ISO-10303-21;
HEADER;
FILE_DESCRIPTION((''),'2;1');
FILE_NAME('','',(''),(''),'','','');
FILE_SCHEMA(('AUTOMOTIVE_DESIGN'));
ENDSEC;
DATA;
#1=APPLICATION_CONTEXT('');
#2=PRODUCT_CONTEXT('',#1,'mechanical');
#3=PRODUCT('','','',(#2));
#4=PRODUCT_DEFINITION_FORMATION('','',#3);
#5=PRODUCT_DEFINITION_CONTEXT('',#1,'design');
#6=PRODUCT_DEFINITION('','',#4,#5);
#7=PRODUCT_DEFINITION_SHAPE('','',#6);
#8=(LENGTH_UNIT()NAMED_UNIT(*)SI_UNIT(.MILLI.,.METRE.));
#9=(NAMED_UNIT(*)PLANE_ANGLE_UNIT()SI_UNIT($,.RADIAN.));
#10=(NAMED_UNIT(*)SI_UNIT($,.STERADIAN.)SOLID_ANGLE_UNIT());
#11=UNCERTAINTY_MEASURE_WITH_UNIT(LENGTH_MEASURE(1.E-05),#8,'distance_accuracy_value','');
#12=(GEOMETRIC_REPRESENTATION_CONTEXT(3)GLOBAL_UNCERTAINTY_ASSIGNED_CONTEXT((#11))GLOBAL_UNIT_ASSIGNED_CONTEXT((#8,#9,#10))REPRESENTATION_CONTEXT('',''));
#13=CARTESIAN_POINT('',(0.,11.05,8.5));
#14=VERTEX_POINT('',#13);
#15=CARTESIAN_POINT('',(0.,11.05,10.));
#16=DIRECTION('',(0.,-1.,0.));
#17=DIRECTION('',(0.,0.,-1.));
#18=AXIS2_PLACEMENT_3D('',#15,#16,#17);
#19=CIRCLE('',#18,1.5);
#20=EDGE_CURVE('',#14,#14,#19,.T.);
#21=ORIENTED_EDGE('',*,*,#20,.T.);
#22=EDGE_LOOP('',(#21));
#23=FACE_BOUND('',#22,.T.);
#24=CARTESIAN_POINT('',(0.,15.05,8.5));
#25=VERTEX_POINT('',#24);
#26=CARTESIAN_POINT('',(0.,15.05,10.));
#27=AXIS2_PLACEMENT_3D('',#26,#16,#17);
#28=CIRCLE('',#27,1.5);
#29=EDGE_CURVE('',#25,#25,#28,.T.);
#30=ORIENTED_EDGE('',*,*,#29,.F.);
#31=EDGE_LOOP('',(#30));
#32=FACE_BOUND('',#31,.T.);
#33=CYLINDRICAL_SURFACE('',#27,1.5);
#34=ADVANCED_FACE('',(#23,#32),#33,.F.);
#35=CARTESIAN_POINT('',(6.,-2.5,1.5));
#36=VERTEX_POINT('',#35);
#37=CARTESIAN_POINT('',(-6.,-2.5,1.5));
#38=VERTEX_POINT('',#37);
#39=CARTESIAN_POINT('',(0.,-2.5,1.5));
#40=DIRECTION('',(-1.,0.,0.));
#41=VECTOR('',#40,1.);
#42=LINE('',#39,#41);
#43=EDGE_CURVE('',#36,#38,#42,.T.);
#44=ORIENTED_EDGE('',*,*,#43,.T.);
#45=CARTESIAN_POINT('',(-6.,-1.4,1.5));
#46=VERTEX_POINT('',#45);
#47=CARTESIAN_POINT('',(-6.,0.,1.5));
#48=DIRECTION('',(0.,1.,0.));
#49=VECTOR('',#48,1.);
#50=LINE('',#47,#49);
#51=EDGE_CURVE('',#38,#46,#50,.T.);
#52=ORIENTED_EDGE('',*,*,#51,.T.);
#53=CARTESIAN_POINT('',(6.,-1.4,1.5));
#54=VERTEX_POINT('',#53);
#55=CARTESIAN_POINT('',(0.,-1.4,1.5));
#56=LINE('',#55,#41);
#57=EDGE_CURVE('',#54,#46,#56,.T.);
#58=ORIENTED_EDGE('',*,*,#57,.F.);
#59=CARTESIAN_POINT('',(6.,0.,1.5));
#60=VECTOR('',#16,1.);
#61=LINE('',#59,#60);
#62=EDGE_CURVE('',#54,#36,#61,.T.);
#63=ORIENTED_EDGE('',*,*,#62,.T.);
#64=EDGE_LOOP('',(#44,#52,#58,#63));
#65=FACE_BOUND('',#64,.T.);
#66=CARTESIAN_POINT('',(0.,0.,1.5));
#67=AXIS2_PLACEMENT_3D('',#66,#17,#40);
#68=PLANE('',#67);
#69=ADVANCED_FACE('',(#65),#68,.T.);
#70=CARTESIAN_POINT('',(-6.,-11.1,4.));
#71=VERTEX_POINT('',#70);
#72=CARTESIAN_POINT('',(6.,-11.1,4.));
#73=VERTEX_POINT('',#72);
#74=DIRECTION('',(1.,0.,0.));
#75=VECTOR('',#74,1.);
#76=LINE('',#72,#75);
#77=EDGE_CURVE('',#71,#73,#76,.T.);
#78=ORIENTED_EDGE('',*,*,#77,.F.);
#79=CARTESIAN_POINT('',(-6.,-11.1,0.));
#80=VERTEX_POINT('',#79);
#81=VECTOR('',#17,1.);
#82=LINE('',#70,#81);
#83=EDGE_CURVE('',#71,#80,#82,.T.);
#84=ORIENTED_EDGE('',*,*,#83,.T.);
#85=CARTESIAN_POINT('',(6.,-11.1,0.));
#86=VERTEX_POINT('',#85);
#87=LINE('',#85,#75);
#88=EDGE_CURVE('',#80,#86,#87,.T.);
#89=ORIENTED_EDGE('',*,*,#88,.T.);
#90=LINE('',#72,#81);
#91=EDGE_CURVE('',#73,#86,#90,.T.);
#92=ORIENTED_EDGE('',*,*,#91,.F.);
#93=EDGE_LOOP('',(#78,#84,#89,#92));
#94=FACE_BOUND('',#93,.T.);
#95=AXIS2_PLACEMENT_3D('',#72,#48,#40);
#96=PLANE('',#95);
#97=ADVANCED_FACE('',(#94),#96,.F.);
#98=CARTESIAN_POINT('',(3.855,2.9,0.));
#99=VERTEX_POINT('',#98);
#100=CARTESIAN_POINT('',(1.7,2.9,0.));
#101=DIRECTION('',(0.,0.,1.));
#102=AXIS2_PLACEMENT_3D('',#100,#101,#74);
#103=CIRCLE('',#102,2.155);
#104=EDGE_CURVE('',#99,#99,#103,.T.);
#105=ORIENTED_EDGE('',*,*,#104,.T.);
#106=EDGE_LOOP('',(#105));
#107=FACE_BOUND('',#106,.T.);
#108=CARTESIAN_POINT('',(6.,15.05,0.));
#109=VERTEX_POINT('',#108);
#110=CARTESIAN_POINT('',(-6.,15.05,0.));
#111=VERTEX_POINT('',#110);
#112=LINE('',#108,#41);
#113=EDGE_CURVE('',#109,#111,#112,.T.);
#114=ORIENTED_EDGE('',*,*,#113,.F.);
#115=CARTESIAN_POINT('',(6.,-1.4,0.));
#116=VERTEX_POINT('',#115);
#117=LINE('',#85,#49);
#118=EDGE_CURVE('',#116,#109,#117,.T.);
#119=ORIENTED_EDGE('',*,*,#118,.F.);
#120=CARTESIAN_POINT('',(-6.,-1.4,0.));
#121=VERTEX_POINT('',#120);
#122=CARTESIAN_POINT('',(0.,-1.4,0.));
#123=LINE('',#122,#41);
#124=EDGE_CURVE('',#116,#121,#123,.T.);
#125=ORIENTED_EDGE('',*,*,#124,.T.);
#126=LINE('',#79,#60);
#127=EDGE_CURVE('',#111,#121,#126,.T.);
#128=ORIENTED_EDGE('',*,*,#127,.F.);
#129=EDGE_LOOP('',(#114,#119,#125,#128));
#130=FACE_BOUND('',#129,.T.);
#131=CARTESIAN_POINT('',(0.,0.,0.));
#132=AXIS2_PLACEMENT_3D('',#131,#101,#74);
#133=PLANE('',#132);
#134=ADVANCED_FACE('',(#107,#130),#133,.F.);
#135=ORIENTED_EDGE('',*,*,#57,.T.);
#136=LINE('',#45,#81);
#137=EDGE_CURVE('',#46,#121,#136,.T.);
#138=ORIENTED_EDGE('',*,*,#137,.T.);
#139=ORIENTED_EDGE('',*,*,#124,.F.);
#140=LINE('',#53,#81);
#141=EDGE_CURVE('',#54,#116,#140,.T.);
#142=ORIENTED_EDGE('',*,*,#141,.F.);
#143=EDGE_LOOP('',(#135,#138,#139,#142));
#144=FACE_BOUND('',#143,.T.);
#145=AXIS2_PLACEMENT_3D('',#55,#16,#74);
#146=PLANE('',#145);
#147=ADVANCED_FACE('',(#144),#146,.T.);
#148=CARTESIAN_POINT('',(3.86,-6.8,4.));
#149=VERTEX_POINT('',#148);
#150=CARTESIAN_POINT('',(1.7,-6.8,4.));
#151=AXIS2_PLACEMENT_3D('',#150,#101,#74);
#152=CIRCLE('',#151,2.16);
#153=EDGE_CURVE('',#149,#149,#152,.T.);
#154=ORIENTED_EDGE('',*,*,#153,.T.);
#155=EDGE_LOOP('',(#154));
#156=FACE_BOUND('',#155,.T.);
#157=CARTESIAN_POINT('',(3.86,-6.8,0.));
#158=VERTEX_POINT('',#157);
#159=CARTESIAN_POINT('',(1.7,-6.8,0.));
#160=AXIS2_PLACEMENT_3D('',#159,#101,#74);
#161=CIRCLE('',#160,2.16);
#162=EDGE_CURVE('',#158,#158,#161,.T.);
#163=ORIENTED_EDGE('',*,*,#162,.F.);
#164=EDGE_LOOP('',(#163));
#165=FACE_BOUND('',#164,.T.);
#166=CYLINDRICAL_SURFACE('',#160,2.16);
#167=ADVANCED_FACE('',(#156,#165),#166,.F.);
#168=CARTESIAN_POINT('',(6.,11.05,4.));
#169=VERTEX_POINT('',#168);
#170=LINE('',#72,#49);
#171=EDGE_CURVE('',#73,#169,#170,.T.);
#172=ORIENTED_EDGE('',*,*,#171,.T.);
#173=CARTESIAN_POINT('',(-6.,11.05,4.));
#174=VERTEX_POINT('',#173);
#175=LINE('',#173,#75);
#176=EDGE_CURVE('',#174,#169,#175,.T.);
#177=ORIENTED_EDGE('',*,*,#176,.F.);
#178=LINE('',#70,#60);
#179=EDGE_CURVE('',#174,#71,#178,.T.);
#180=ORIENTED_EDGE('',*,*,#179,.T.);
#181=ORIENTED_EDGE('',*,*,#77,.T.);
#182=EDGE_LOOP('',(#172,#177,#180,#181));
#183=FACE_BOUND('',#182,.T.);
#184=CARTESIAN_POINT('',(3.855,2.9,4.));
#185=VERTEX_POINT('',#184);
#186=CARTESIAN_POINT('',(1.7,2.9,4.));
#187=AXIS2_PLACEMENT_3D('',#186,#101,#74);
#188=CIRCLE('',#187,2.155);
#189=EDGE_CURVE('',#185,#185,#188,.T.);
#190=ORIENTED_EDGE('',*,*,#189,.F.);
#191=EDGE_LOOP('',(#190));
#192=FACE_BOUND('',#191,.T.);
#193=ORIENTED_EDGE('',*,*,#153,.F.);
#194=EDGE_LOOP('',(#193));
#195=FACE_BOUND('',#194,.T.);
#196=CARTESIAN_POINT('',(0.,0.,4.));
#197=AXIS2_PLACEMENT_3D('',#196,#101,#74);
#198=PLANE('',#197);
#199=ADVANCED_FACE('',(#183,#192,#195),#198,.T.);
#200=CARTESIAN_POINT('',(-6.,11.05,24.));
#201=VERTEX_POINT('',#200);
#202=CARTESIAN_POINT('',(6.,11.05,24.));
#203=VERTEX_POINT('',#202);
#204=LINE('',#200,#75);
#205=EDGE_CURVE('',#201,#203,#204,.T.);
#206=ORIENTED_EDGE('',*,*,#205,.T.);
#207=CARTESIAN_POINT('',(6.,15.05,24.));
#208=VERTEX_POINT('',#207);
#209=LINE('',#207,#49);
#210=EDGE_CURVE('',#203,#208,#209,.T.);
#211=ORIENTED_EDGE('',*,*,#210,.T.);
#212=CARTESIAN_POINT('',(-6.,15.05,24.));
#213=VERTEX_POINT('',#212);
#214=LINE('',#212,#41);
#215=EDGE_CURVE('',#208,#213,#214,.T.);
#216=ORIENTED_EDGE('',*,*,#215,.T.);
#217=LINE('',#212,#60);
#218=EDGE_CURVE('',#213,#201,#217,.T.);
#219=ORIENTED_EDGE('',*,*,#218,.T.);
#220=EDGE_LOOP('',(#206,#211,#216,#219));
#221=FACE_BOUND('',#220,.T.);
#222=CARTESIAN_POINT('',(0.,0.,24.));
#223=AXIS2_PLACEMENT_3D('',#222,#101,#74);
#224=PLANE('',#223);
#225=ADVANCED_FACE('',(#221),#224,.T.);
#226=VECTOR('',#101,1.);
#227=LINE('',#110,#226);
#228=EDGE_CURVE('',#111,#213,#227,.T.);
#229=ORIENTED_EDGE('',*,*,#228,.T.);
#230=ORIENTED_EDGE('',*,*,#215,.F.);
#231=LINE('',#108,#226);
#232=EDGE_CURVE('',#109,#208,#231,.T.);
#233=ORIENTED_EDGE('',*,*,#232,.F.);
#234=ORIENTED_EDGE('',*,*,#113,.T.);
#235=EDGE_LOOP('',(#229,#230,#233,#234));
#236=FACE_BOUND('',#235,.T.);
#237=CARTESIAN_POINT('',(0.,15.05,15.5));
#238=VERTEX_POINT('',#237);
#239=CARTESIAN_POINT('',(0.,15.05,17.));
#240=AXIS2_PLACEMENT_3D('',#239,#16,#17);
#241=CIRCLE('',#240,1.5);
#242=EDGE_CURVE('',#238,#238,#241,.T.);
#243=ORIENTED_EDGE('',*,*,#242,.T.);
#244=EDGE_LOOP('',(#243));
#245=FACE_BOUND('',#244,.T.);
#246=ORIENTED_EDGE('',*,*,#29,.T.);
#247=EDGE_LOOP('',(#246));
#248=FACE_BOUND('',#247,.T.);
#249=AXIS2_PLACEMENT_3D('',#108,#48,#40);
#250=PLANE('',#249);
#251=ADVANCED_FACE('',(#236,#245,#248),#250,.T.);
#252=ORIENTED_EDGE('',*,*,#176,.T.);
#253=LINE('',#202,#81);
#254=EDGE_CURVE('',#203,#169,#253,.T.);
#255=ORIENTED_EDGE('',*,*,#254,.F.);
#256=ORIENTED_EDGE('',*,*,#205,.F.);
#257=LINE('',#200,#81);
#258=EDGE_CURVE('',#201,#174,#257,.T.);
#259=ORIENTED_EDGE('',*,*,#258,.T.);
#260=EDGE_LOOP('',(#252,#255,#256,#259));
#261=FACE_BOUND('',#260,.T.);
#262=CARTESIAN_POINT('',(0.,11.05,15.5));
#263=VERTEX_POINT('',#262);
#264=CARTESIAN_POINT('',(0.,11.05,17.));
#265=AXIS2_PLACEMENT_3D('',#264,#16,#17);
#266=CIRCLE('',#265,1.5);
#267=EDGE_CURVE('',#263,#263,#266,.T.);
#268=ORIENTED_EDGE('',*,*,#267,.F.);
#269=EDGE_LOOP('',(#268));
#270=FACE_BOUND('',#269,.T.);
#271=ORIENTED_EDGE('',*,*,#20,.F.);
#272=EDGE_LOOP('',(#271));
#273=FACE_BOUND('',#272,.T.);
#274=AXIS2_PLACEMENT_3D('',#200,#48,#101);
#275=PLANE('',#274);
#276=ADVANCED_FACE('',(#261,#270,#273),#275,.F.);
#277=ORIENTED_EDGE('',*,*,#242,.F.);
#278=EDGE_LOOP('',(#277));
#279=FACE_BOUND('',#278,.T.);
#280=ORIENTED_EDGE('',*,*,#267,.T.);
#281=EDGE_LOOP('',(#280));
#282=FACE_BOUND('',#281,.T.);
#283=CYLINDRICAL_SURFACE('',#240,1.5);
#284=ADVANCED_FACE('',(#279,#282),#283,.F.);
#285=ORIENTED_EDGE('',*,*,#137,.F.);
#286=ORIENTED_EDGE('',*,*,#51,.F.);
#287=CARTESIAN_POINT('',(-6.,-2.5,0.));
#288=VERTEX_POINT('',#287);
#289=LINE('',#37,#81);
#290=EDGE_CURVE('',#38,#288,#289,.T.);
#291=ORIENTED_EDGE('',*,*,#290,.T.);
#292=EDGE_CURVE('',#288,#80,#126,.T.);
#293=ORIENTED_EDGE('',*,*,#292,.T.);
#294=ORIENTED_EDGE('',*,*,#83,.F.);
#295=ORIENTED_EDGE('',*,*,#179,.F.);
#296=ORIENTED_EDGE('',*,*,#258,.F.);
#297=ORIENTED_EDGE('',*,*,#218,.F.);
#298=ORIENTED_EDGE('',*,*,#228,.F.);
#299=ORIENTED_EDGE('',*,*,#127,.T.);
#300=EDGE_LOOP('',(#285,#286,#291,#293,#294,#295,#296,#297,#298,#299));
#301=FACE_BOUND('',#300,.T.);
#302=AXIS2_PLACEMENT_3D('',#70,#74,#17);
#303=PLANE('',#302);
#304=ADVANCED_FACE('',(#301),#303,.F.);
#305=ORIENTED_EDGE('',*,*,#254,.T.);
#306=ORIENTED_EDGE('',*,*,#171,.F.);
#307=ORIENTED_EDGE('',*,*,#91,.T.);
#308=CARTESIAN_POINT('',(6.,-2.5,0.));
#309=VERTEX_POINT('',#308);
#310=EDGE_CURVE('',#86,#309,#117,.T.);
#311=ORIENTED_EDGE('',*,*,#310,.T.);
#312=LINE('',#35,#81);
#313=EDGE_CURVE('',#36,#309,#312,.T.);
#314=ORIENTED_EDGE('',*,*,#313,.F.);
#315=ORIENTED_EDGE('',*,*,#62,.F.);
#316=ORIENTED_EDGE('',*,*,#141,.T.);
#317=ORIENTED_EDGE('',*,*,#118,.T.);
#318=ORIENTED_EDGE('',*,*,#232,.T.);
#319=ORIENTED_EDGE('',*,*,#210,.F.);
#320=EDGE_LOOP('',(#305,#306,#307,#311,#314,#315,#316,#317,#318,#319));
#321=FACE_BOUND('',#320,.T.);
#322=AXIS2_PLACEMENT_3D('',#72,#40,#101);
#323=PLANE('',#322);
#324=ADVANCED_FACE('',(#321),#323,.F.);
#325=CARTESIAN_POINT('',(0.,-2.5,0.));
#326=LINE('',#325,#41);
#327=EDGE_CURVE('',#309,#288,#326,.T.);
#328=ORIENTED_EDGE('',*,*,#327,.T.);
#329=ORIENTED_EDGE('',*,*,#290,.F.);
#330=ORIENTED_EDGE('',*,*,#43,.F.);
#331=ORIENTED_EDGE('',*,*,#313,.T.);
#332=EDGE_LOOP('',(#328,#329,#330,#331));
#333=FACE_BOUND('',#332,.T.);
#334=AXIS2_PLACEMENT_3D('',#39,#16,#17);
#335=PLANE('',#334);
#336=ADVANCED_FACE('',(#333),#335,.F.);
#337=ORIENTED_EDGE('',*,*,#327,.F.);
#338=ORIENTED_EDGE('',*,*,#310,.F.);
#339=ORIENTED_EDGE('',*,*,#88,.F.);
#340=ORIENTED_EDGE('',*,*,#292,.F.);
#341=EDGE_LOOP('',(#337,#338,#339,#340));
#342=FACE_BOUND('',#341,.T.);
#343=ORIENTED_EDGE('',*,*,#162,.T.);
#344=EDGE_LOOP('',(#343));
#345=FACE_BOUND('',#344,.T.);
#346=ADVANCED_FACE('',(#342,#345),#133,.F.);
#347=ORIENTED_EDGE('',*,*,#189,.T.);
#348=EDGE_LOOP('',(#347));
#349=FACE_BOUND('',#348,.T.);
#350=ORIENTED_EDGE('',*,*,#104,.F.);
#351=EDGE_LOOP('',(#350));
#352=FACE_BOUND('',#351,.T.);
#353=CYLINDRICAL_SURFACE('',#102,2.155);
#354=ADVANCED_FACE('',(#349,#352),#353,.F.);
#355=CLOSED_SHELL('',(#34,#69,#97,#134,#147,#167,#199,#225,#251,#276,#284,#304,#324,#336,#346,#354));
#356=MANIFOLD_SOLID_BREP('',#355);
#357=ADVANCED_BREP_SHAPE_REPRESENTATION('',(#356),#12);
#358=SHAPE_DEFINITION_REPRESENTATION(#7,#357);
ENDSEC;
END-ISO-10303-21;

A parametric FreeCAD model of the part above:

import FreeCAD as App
import Part
import Sketcher
from FreeCAD import Vector


def add_polygon(sketch, points):
    """Adds a closed chain of lines whose ends are joined by coincident constraints."""
    first, n = sketch.GeometryCount, len(points)
    for a, b in zip(points, points[1:] + points[:1]):
        sketch.addGeometry(Part.LineSegment(App.Vector(*a, 0), App.Vector(*b, 0)), False)
    for i in range(n):
        sketch.addConstraint(Sketcher.Constraint("Coincident", first + i, 2, first + (i + 1) % n, 1))

doc = App.newDocument("Part")
body = doc.addObject("PartDesign::Body", "Body")

# Sketch on XY plane
sketch1 = body.newObject("Sketcher::SketchObject", "Sketch")
sketch1.AttachmentSupport = (doc.getObject("XY_Plane"), [""])
sketch1.MapMode = "FlatFace"
add_polygon(sketch1, [(-6, 11), (-6, -11), (6, -11), (6, 11)])  # lines 0-3
sketch1.addConstraint([
    Sketcher.Constraint("Vertical", 0),
    Sketcher.Constraint("Horizontal", 1),
    Sketcher.Constraint("Vertical", 2),
    Sketcher.Constraint("Horizontal", 3),
    Sketcher.Constraint("Symmetric", 0, 2, 2, 2, -1, 1),
    Sketcher.Constraint("DistanceX", 1, 1, 1, 2, 12.0),
    Sketcher.Constraint("DistanceY", 0, 2, 0, 1, 22.2),
])
pad1 = body.newObject("PartDesign::Pad", "Pad")
pad1.Profile = sketch1
pad1.Length = 4

# Sketch on XY plane
sketch2 = body.newObject("Sketcher::SketchObject", "Sketch001")
sketch2.AttachmentSupport = (doc.getObject("XY_Plane"), [""])
sketch2.MapMode = "FlatFace"
sketch2.AttachmentOffset = App.Placement(Vector(0, 0, 4), App.Rotation())
sketch2.addGeometry([
    Part.Circle(Vector(1.7, -6.8, 0), Vector(0, 0, 1), 2.2),
    Part.Circle(Vector(1.7, 2.9, 0), Vector(0, 0, 1), 2.2),
], False)
sketch2.addConstraint([
    Sketcher.Constraint("Vertical", 0, 3, 1, 3),
    Sketcher.Constraint("Diameter", 0, 4.32),
    Sketcher.Constraint("Diameter", 1, 4.31),
    Sketcher.Constraint("DistanceX", -1, 1, 0, 3, 1.7),
    Sketcher.Constraint("DistanceY", 0, 3, -1, 1, 6.8),
    Sketcher.Constraint("DistanceY", -1, 1, 1, 3, 2.9),
])
pocket1 = body.newObject("PartDesign::Pocket", "Pocket")
pocket1.Profile = sketch2
pocket1.Length = 4

# Sketch on XY plane
sketch3 = body.newObject("Sketcher::SketchObject", "Sketch002")
sketch3.AttachmentSupport = (doc.getObject("XY_Plane"), [""])
sketch3.MapMode = "FlatFace"
add_polygon(sketch3, [(6, -1.4), (6, -2.5), (-6, -2.5), (-6, -1.4)])  # lines 0-3
sketch3.addConstraint([
    Sketcher.Constraint("Vertical", 0),
    Sketcher.Constraint("Horizontal", 1),
    Sketcher.Constraint("Vertical", 2),
    Sketcher.Constraint("Horizontal", 3),
    Sketcher.Constraint("DistanceX", 1, 2, 1, 1, 12.0),
    Sketcher.Constraint("DistanceY", 0, 2, 0, 1, 1.1),
    Sketcher.Constraint("DistanceX", -1, 1, 0, 2, 6.0),
    Sketcher.Constraint("DistanceY", 0, 2, -1, 1, 2.5),
])
pocket2 = body.newObject("PartDesign::Pocket", "Pocket001")
pocket2.Profile = sketch3
pocket2.Length = 1.5
pocket2.Reversed = True

# Sketch on XY plane
sketch4 = body.newObject("Sketcher::SketchObject", "Sketch003")
sketch4.AttachmentSupport = (doc.getObject("XY_Plane"), [""])
sketch4.MapMode = "FlatFace"
add_polygon(sketch4, [(6, 11.1), (6, 7.2), (-7.4, 7.2), (-7.4, 11.1)])  # lines 0-3
sketch4.addConstraint([
    Sketcher.Constraint("Vertical", 0),
    Sketcher.Constraint("Horizontal", 1),
    Sketcher.Constraint("Vertical", 2),
    Sketcher.Constraint("Horizontal", 3),
    Sketcher.Constraint("DistanceY", 0, 2, 0, 1, 3.9),
    Sketcher.Constraint("DistanceX", -1, 1, 0, 2, 6.0),
    Sketcher.Constraint("DistanceY", -1, 1, 0, 2, 7.2),
    Sketcher.Constraint("DistanceX", 1, 2, 1, 1, 13.387393),
])
pocket3 = body.newObject("PartDesign::Pocket", "Pocket002")
pocket3.Profile = sketch4
pocket3.Type = "ThroughAll"
pocket3.Reversed = True

# Sketch on XY plane
sketch5 = body.newObject("Sketcher::SketchObject", "Sketch004")
sketch5.AttachmentSupport = (doc.getObject("XY_Plane"), [""])
sketch5.MapMode = "FlatFace"
sketch5.AttachmentOffset = App.Placement(Vector(0, 0, 4), App.Rotation())
add_polygon(sketch5, [(-6, 15), (-6, 7), (6, 7), (6, 15)])  # lines 0-3
sketch5.addConstraint([
    Sketcher.Constraint("Vertical", 0),
    Sketcher.Constraint("Horizontal", 1),
    Sketcher.Constraint("Vertical", 2),
    Sketcher.Constraint("Horizontal", 3),
    Sketcher.Constraint("DistanceX", 1, 1, 1, 2, 12.0),
    Sketcher.Constraint("DistanceX", 0, 2, -1, 1, 6.0),
    Sketcher.Constraint("DistanceY", 0, 2, 0, 1, 7.85),
    Sketcher.Constraint("DistanceY", -1, 1, 0, 2, 7.2),
])
pad2 = body.newObject("PartDesign::Pad", "Pad001")
pad2.Profile = sketch5
pad2.Length = 4
pad2.Reversed = True

# Sketch on XY plane
sketch6 = body.newObject("Sketcher::SketchObject", "Sketch005")
sketch6.AttachmentSupport = (doc.getObject("XY_Plane"), [""])
sketch6.MapMode = "FlatFace"
sketch6.AttachmentOffset = App.Placement(Vector(0, 0, 4), App.Rotation())
add_polygon(sketch6, [(-6, 15.1), (-6, 11.1), (6, 11.1), (6, 15.1)])  # lines 0-3
sketch6.addConstraint([
    Sketcher.Constraint("Vertical", 0),
    Sketcher.Constraint("Horizontal", 1),
    Sketcher.Constraint("Vertical", 2),
    Sketcher.Constraint("Horizontal", 3),
    Sketcher.Constraint("DistanceX", 1, 1, 1, 2, 12.0),
    Sketcher.Constraint("DistanceY", 0, 2, 0, 1, 4.0),
    Sketcher.Constraint("DistanceX", 0, 2, -1, 1, 6.0),
    Sketcher.Constraint("DistanceY", -1, 1, 0, 2, 11.05),
])
pad3 = body.newObject("PartDesign::Pad", "Pad002")
pad3.Profile = sketch6
pad3.Length = 20

# Sketch on XZ plane
sketch7 = body.newObject("Sketcher::SketchObject", "Sketch006")
sketch7.AttachmentSupport = (doc.getObject("XZ_Plane"), [""])
sketch7.MapMode = "FlatFace"
sketch7.AttachmentOffset = App.Placement(Vector(0, 0, -11.05), App.Rotation())
sketch7.addGeometry([
    Part.Circle(Vector(0, 10, 0), Vector(0, 0, 1), 1.5),
    Part.Circle(Vector(0, 17, 0), Vector(0, 0, 1), 1.5),
], False)
sketch7.addConstraint([
    Sketcher.Constraint("Equal", 0, 1),
    Sketcher.Constraint("PointOnObject", 0, 3, -2),
    Sketcher.Constraint("PointOnObject", 1, 3, -2),
    Sketcher.Constraint("Diameter", 0, 3.0),
    Sketcher.Constraint("DistanceY", -1, 1, 0, 3, 10.0),
    Sketcher.Constraint("DistanceY", -1, 1, 1, 3, 17.0),
])
pocket4 = body.newObject("PartDesign::Pocket", "Pocket003")
pocket4.Profile = sketch7
pocket4.Type = "ThroughAll"

doc.recompute()
